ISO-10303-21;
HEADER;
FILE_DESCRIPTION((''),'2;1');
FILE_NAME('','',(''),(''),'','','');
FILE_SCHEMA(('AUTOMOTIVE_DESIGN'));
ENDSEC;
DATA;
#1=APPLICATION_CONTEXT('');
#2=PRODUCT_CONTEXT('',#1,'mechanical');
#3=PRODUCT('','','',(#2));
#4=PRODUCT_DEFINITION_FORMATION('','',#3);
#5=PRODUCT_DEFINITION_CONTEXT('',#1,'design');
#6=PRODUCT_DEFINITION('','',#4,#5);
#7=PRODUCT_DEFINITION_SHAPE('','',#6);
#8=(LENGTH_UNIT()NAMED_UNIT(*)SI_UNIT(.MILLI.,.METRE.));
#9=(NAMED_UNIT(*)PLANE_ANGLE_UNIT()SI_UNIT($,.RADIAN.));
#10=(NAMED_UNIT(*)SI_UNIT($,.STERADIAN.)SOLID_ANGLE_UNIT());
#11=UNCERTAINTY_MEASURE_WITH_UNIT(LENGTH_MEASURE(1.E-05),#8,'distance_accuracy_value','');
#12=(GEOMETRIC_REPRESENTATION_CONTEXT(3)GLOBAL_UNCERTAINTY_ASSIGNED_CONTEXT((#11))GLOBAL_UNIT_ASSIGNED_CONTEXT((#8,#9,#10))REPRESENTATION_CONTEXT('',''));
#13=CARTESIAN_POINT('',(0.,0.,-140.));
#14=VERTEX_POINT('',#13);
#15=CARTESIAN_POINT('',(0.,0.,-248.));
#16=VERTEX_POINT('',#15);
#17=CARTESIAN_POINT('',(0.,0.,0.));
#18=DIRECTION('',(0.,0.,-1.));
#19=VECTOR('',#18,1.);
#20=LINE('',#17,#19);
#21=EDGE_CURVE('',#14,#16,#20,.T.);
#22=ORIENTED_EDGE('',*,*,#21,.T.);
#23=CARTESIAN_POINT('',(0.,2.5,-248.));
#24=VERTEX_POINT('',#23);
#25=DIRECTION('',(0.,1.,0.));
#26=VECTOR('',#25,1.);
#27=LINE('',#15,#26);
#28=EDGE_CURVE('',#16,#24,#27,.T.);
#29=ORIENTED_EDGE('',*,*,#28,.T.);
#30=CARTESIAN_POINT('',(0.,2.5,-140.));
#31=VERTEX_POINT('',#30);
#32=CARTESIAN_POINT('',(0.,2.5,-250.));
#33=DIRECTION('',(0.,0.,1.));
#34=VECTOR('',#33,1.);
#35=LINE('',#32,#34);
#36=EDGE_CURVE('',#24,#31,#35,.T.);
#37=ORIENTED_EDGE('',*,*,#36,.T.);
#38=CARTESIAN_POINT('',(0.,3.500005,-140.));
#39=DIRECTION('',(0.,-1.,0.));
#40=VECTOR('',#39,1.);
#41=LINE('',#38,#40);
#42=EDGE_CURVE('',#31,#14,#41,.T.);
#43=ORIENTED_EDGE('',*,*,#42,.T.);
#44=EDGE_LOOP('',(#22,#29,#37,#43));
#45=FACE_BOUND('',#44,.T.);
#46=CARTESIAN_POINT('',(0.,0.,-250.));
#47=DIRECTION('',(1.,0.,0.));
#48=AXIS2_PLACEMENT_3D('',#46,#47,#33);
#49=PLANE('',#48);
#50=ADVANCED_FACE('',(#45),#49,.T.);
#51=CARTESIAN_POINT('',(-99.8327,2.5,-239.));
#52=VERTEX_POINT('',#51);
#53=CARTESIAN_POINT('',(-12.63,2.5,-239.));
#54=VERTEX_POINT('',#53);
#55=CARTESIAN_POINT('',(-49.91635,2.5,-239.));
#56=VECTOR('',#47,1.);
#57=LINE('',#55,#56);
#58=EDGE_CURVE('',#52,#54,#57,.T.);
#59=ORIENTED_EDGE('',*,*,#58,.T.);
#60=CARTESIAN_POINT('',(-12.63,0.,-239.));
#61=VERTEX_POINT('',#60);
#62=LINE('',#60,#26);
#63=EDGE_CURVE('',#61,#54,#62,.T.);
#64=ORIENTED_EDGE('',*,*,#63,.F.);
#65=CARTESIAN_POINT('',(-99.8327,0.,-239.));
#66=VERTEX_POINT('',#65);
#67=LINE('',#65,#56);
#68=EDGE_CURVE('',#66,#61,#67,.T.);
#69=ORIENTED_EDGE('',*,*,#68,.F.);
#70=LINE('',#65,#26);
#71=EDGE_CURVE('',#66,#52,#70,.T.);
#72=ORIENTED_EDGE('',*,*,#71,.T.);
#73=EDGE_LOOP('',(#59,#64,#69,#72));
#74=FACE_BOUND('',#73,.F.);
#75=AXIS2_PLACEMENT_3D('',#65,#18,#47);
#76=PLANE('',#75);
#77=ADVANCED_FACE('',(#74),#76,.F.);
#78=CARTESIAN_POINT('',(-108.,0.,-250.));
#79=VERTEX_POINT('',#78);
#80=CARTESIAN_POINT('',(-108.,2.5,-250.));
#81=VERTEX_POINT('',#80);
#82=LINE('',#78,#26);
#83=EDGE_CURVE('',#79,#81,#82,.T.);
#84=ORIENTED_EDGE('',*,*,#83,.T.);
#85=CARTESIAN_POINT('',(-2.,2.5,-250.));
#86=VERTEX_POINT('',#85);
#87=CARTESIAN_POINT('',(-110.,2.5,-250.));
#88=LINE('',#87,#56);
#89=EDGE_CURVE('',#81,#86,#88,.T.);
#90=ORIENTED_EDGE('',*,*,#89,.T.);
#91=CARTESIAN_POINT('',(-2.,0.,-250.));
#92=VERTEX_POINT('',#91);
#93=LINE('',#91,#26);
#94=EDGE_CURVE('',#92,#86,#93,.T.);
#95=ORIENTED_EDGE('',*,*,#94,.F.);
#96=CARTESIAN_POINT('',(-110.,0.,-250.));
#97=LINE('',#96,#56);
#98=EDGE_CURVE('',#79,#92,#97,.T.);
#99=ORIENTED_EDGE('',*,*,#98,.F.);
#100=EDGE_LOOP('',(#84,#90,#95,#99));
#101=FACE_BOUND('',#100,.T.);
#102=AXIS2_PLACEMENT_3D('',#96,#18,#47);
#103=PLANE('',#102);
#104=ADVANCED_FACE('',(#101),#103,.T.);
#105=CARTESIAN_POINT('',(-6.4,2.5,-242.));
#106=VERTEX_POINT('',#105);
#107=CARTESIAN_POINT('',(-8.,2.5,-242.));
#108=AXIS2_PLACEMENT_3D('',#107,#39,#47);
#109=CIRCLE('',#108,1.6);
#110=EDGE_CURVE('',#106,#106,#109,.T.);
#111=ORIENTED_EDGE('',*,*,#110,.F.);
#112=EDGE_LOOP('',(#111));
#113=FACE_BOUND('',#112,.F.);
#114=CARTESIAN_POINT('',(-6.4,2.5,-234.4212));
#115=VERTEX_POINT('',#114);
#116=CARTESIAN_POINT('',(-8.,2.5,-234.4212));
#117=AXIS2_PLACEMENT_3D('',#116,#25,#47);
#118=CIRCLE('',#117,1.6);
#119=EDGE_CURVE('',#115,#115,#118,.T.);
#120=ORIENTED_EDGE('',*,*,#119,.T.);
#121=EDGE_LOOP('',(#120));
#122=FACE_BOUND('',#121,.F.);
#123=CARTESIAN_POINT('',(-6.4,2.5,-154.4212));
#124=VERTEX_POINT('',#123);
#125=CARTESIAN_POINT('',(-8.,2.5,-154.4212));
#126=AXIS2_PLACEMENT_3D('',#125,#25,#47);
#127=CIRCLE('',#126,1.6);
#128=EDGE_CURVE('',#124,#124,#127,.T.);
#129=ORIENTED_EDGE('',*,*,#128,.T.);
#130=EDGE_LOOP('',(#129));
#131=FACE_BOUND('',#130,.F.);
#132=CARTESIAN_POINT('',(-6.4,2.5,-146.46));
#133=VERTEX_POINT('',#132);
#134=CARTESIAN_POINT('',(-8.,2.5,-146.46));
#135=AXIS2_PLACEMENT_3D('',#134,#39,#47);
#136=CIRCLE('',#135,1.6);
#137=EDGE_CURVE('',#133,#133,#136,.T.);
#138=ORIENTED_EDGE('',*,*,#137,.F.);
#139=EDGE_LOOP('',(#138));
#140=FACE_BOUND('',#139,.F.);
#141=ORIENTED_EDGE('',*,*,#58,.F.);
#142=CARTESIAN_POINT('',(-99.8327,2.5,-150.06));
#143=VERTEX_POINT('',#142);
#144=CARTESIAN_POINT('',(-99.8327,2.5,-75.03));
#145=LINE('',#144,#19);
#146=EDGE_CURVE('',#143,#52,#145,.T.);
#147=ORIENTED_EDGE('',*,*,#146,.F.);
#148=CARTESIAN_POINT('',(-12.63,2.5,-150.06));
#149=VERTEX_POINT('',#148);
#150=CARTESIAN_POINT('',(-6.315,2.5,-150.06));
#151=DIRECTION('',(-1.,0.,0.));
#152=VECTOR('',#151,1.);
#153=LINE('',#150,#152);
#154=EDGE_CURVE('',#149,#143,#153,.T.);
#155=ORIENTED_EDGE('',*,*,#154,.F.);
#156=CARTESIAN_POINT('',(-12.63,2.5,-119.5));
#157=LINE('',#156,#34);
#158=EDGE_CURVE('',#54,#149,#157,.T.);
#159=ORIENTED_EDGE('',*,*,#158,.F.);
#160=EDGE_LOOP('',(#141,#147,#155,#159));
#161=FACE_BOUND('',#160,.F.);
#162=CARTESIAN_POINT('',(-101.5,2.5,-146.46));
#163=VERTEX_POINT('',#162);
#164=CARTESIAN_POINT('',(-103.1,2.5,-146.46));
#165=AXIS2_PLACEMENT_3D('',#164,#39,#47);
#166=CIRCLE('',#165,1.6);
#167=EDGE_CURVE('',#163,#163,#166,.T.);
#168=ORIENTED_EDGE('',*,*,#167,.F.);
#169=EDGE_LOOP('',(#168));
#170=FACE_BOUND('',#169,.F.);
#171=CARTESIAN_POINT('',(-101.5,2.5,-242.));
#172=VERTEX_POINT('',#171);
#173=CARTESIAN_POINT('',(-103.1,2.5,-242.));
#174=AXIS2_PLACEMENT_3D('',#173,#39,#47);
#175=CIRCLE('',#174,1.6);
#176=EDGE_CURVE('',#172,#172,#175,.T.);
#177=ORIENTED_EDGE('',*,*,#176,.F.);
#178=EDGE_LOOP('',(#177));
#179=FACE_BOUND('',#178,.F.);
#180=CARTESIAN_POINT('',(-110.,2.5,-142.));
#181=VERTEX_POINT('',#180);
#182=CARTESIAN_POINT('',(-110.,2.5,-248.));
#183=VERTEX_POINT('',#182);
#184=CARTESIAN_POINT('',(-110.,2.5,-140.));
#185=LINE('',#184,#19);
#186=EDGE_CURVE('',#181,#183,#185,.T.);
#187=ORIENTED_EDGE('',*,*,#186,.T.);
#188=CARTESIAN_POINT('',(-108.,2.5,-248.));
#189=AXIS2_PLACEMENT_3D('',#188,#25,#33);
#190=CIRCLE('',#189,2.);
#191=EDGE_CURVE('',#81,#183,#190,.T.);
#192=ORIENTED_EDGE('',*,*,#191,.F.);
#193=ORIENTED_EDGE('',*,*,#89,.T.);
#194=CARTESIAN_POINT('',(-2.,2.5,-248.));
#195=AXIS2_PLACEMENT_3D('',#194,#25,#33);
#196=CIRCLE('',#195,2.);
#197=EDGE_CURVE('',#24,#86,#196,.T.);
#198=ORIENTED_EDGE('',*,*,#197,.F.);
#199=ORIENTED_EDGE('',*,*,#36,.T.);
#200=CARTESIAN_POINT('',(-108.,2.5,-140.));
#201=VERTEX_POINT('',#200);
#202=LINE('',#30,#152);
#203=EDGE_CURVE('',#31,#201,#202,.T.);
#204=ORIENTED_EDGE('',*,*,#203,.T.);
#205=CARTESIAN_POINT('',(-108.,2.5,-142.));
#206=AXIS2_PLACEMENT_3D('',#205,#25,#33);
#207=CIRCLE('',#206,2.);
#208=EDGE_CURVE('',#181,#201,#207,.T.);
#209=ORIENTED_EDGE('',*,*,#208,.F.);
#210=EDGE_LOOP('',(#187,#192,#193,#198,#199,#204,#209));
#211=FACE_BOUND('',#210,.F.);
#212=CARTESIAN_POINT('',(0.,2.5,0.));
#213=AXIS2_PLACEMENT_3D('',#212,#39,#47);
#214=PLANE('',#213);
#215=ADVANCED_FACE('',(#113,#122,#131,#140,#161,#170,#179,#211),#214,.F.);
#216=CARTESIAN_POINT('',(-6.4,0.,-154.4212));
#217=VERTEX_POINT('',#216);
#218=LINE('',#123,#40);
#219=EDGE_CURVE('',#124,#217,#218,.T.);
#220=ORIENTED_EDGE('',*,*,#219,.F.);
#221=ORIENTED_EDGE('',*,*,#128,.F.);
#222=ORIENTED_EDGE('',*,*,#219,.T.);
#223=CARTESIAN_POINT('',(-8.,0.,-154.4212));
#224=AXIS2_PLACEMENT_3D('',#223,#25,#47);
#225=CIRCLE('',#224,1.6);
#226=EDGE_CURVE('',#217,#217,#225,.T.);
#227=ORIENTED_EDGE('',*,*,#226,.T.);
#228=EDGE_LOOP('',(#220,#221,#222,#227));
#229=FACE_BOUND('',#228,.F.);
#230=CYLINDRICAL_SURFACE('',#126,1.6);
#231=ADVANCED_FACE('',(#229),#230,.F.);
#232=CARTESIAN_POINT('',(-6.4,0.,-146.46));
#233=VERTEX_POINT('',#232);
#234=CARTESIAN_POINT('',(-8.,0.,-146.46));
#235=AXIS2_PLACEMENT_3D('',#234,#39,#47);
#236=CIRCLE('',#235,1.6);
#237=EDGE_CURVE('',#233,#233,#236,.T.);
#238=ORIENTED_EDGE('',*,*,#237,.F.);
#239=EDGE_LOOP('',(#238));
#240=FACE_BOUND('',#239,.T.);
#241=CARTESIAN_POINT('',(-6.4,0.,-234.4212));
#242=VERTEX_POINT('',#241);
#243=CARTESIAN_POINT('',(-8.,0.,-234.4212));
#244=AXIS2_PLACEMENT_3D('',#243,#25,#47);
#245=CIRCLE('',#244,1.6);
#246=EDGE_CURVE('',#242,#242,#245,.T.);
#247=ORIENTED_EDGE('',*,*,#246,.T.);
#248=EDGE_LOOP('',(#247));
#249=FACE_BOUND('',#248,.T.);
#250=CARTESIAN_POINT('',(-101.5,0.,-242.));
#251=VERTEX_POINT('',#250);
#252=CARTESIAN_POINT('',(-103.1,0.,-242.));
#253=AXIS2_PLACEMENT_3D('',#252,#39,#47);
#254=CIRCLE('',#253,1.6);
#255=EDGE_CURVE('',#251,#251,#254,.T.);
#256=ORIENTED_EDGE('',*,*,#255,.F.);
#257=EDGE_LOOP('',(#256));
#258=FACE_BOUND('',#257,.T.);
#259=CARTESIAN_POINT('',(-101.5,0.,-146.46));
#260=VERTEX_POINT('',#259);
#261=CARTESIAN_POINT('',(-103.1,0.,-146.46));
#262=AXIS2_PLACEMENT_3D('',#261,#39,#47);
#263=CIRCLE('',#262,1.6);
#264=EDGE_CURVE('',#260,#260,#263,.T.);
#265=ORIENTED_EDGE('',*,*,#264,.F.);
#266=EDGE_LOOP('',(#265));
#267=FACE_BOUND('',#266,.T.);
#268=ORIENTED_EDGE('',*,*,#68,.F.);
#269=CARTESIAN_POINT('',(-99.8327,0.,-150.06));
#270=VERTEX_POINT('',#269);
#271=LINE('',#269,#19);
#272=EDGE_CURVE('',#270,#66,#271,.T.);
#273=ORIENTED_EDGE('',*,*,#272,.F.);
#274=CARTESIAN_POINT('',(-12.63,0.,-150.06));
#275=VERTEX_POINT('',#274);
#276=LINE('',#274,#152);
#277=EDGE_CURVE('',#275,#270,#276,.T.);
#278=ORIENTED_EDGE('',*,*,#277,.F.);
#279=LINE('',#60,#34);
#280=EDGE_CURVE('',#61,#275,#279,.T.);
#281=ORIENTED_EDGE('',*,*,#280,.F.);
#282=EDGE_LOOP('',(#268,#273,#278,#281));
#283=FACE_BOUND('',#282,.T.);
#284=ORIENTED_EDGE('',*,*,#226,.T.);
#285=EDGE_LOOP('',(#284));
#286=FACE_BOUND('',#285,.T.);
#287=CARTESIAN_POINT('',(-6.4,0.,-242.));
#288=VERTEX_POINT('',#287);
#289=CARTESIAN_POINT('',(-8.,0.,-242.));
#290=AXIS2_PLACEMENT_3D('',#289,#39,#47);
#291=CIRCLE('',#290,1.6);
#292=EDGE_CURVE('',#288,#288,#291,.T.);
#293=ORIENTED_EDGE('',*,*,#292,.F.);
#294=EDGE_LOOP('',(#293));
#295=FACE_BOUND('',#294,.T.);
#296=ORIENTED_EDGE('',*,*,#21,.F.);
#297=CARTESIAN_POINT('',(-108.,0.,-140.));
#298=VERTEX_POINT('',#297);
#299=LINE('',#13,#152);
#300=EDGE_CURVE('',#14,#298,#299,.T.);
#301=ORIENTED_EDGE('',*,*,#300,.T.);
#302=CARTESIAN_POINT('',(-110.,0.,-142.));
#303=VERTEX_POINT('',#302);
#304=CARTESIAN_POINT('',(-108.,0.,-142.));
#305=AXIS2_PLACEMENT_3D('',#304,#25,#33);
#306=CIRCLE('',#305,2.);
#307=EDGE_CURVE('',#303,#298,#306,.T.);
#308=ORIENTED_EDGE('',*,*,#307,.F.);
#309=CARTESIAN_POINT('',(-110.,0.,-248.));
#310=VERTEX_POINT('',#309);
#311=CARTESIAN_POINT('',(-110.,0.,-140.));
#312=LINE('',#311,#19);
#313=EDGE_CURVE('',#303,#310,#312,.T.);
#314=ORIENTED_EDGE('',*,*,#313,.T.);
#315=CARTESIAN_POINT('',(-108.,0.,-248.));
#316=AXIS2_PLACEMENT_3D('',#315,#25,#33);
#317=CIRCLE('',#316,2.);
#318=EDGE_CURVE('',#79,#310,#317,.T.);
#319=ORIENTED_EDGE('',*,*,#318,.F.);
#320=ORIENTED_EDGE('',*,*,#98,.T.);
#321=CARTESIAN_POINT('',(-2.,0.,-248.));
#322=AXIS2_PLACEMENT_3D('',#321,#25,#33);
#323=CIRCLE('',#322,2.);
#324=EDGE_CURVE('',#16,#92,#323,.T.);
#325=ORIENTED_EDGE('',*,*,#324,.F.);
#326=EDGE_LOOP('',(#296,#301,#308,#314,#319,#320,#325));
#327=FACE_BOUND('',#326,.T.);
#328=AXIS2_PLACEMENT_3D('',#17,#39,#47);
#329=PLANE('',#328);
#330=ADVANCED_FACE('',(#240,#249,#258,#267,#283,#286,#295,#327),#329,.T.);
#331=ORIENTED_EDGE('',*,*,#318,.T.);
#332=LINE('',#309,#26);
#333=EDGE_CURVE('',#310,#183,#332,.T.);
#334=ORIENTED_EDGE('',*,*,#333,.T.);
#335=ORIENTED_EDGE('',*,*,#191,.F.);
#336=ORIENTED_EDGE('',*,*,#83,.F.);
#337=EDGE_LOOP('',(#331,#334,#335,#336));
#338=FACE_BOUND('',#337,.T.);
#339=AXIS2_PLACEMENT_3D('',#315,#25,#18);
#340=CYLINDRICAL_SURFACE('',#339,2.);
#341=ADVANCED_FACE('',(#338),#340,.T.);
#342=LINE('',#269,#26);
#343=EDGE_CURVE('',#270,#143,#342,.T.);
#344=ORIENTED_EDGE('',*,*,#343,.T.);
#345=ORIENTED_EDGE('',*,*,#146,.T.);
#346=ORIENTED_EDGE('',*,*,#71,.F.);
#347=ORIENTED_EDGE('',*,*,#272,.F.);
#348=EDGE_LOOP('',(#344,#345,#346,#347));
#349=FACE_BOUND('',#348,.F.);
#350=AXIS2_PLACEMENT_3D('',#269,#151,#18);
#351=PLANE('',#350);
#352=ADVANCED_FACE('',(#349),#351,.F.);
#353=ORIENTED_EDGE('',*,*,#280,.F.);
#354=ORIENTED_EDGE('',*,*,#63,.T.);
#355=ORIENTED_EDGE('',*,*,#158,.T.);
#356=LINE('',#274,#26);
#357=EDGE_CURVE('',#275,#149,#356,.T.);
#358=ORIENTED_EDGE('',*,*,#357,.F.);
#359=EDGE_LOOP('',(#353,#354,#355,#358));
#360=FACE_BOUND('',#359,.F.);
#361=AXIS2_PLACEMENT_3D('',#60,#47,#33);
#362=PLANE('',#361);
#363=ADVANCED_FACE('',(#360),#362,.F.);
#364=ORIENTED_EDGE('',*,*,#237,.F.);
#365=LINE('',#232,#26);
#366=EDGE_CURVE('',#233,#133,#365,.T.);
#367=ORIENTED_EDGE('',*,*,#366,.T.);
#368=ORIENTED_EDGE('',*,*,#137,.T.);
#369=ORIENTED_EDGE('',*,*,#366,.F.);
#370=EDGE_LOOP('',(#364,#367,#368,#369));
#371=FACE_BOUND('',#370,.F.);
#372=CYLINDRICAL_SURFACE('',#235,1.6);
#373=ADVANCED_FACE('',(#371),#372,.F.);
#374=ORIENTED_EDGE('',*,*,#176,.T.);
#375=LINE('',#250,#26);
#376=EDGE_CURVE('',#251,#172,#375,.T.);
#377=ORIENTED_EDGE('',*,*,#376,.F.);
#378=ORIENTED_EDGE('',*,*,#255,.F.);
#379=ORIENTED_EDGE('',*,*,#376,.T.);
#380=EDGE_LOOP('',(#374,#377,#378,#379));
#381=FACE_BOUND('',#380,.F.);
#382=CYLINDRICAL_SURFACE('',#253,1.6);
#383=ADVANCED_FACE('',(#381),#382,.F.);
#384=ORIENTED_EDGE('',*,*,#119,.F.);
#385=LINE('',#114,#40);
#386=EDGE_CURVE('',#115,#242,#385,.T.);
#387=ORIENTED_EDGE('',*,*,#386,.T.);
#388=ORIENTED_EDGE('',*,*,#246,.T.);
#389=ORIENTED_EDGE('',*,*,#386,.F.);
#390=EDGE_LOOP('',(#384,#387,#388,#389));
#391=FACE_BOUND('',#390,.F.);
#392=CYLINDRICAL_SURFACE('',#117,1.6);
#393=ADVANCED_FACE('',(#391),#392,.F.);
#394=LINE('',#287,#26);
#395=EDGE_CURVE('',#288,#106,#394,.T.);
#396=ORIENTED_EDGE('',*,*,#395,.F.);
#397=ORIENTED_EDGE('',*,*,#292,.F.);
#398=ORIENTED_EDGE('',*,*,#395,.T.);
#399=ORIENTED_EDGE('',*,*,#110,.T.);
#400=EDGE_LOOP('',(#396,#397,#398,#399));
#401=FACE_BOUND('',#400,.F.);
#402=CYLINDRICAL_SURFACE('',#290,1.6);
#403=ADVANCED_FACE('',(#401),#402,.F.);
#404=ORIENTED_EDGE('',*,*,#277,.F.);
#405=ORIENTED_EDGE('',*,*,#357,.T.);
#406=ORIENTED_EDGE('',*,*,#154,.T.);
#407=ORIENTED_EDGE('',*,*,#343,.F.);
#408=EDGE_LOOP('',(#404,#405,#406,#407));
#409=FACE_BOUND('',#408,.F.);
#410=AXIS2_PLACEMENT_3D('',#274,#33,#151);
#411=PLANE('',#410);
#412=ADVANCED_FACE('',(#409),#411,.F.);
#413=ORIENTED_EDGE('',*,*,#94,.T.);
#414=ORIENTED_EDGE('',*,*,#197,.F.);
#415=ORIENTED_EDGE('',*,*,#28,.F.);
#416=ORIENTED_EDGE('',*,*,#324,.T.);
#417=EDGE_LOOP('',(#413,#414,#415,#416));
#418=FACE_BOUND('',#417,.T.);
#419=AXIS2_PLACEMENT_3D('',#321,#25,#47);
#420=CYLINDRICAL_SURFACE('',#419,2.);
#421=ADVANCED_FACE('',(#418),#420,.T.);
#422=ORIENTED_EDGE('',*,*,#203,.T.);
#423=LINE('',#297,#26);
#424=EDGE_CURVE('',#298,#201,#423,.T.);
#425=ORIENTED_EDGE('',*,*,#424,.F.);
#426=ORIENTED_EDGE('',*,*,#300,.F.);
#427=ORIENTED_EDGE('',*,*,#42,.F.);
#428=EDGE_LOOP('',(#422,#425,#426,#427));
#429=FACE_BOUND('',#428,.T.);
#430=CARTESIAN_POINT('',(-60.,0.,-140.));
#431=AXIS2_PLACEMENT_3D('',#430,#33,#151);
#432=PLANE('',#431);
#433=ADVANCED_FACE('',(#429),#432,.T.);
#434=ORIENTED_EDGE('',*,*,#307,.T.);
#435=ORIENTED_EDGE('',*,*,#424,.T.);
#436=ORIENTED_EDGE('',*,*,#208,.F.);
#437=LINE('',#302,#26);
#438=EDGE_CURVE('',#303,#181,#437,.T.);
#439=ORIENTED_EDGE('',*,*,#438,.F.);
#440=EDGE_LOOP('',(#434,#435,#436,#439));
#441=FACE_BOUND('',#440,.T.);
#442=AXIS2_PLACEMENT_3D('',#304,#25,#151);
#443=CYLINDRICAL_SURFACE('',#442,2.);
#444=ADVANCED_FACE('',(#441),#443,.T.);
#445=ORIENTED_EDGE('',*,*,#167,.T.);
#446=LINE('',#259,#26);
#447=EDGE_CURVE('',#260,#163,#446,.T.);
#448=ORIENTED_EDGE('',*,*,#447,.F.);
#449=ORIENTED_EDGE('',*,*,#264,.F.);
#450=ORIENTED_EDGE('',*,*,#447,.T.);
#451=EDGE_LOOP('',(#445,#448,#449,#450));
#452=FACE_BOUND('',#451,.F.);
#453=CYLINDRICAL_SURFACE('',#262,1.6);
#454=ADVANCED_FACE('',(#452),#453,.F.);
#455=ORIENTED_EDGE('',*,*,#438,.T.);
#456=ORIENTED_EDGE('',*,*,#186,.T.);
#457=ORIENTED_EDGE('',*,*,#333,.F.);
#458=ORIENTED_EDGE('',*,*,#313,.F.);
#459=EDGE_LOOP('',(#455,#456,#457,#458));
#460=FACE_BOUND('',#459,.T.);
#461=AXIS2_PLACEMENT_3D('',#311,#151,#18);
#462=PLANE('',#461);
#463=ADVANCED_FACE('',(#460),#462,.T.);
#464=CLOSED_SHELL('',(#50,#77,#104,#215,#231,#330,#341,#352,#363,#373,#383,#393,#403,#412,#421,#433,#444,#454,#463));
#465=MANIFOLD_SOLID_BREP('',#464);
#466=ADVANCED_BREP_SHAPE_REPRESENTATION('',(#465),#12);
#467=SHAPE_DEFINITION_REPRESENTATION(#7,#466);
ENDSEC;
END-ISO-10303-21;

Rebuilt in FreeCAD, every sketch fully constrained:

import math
import FreeCAD as App
import Part
import Sketcher
Q = App.Units.Quantity


def edges_at(feature, points):
    """Names of the edges that pass closest to the given points."""
    edges = feature.Shape.Edges
    near = lambda p: min(range(len(edges)), key=lambda i: edges[i].distToShape(Part.Vertex(*p))[0])
    return sorted({f"Edge{near(p) + 1}" for p in points})

doc = App.newDocument("Part")
body = doc.addObject("PartDesign::Body", "Body")

sketch1 = body.newObject("Sketcher::SketchObject", "Sketch")
sketch1.AttachmentSupport = (doc.getObject("XZ_Plane"), [""])
sketch1.MapMode = "FlatFace"
sketch1.addGeometry([
    Part.LineSegment(App.Vector(-60, 0, 0), App.Vector(0, 0, 0)),
    Part.LineSegment(App.Vector(0, 0, 0), App.Vector(0, -140, 0)),
    Part.LineSegment(App.Vector(0, -140, 0), App.Vector(-60, -140, 0)),
    Part.LineSegment(App.Vector(-60, -140, 0), App.Vector(-60, 0, 0)),
], False)
sketch1.addConstraint([
    Sketcher.Constraint("Coincident", 0, 2, 1, 1),
    Sketcher.Constraint("Coincident", 1, 2, 2, 1),
    Sketcher.Constraint("Coincident", 2, 2, 3, 1),
    Sketcher.Constraint("Coincident", 3, 2, 0, 1),
    Sketcher.Constraint("Horizontal", 0),
    Sketcher.Constraint("Vertical", 1),
    Sketcher.Constraint("Horizontal", 2),
    Sketcher.Constraint("Vertical", 3),
    Sketcher.Constraint("Coincident", 0, 2, -1, 1),
    Sketcher.Constraint("DistanceX", 0, 1, 0, 2, Q("60 mm")),
    Sketcher.Constraint("DistanceY", 1, 2, 1, 1, Q("140 mm")),
])
pad1 = body.newObject("PartDesign::Pad", "Pad")
pad1.Profile = sketch1
pad1.Length = 2.5
pad1.Reversed = True

sketch2 = body.newObject("Sketcher::SketchObject", "Sketch001")
sketch2.AttachmentSupport = (doc.getObject("XZ_Plane"), [""])
sketch2.MapMode = "FlatFace"
sketch2.AttachmentOffset = App.Placement(App.Vector(0, 0, -2.5), App.Rotation())
sketch2.addGeometry(Part.Circle(App.Vector(-30, -29.9185, 0), App.Vector(0, 0, 1), 2.55), False)
sketch2.addConstraint([
    Sketcher.Constraint("Diameter", 0, Q("5.1 mm")),
    Sketcher.Constraint("DistanceX", 0, 3, -1, 1, Q("30 mm")),
    Sketcher.Constraint("DistanceY", 0, 3, -1, 1, Q("29.9185 mm")),
])
pocket1 = body.newObject("PartDesign::Pocket", "Pocket")
pocket1.Profile = sketch2
pocket1.Length = 10
pocket1.Midplane = True

sketch3 = body.newObject("Sketcher::SketchObject", "Sketch002")
sketch3.AttachmentSupport = (doc.getObject("XZ_Plane"), [""])
sketch3.MapMode = "FlatFace"
sketch3.AttachmentOffset = App.Placement(App.Vector(0, 0, -2.5), App.Rotation())
sketch3.addGeometry(Part.Circle(App.Vector(-30, -29.9185, 0), App.Vector(0, 0, 1), 11.25), False)
sketch3.addConstraint([
    Sketcher.Constraint("Diameter", 0, Q("22.5 mm")),
    Sketcher.Constraint("DistanceX", 0, 3, -1, 1, Q("30 mm")),
    Sketcher.Constraint("DistanceY", 0, 3, -1, 1, Q("29.9185 mm")),
])
pocket2 = body.newObject("PartDesign::Pocket", "Pocket001")
pocket2.Profile = sketch3
pocket2.Length = 10
pocket2.Reversed = True

sketch4 = body.newObject("Sketcher::SketchObject", "Sketch003")
sketch4.AttachmentSupport = (doc.getObject("XZ_Plane"), [""])
sketch4.MapMode = "FlatFace"
sketch4.AttachmentOffset = App.Placement(App.Vector(0, 0, -2.5), App.Rotation())
sketch4.addGeometry(Part.Circle(App.Vector(-30, -29.9185, 0), App.Vector(0, 0, 1), 11.25), False)
sketch4.addConstraint([
    Sketcher.Constraint("Diameter", 0, Q("22.5 mm")),
    Sketcher.Constraint("DistanceX", 0, 3, -1, 1, Q("30 mm")),
    Sketcher.Constraint("DistanceY", 0, 3, -1, 1, Q("29.9185 mm")),
])
pocket3 = body.newObject("PartDesign::Pocket", "Pocket002")
pocket3.Profile = sketch4
pocket3.Length = 10
pocket3.Reversed = True

sketch5 = body.newObject("Sketcher::SketchObject", "Sketch004")
sketch5.AttachmentSupport = (doc.getObject("XZ_Plane"), [""])
sketch5.MapMode = "FlatFace"
sketch5.addGeometry([
    Part.LineSegment(App.Vector(-26.8, -115.1185, 0), App.Vector(-26.8, -111.9185, 0)),
    Part.LineSegment(App.Vector(-26.8, -111.9185, 0), App.Vector(-33.2, -111.9185, 0)),
    Part.LineSegment(App.Vector(-33.2, -111.9185, 0), App.Vector(-33.2, -115.1185, 0)),
    Part.LineSegment(App.Vector(-33.2, -115.1185, 0), App.Vector(-26.8, -115.1185, 0)),
], False)
sketch5.addConstraint([
    Sketcher.Constraint("Coincident", 0, 2, 1, 1),
    Sketcher.Constraint("Coincident", 1, 2, 2, 1),
    Sketcher.Constraint("Coincident", 2, 2, 3, 1),
    Sketcher.Constraint("Coincident", 3, 2, 0, 1),
    Sketcher.Constraint("Vertical", 0),
    Sketcher.Constraint("Horizontal", 1),
    Sketcher.Constraint("Vertical", 2),
    Sketcher.Constraint("Horizontal", 3),
    Sketcher.Constraint("DistanceY", 0, 1, 0, 2, Q("3.2 mm")),
    Sketcher.Constraint("DistanceX", 1, 2, 1, 1, Q("6.4 mm")),
    Sketcher.Constraint("DistanceX", 0, 2, -1, 1, Q("26.8 mm")),
    Sketcher.Constraint("DistanceY", 0, 2, -1, 1, Q("111.9185 mm")),
])
pad2 = body.newObject("PartDesign::Pad", "Pad001")
pad2.Profile = sketch5
pad2.Length = 105

sketch6 = body.newObject("Sketcher::SketchObject", "Sketch005")
sketch6.AttachmentSupport = (doc.getObject("XZ_Plane"), [""])
sketch6.MapMode = "FlatFace"
sketch6.AttachmentOffset = App.Placement(App.Vector(0, 0, 105), App.Rotation())
sketch6.addGeometry([
    Part.LineSegment(App.Vector(-33.2, -111.9185, 0), App.Vector(-26.8, -111.9185, 0)),
    Part.LineSegment(App.Vector(-26.8, -111.9185, 0), App.Vector(-26.8, -14.9185, 0)),
    Part.LineSegment(App.Vector(-26.8, -14.9185, 0), App.Vector(-33.2, -14.9185, 0)),
    Part.LineSegment(App.Vector(-33.2, -14.9185, 0), App.Vector(-33.2, -111.9185, 0)),
    Part.Circle(App.Vector(-30, -29.9185, 0), App.Vector(0, 0, 1), 2.55),
], False)
sketch6.addConstraint([
    Sketcher.Constraint("Coincident", 0, 2, 1, 1),
    Sketcher.Constraint("Coincident", 1, 2, 2, 1),
    Sketcher.Constraint("Coincident", 2, 2, 3, 1),
    Sketcher.Constraint("Coincident", 3, 2, 0, 1),
    Sketcher.Constraint("Horizontal", 0),
    Sketcher.Constraint("Vertical", 1),
    Sketcher.Constraint("Horizontal", 2),
    Sketcher.Constraint("Vertical", 3),
    Sketcher.Constraint("DistanceY", 4, 3, 1, 2, Q("15 mm")),
    Sketcher.Constraint("Diameter", 4, Q("5.1 mm")),
    Sketcher.Constraint("DistanceY", 1, 1, 1, 2, Q("97 mm")),
    Sketcher.Constraint("DistanceX", 0, 1, 0, 2, Q("6.4 mm")),
    Sketcher.Constraint("DistanceX", 4, 3, -1, 1, Q("30 mm")),
    Sketcher.Constraint("DistanceX", 0, 2, -1, 1, Q("26.8 mm")),
    Sketcher.Constraint("DistanceY", 4, 3, -1, 1, Q("29.9185 mm")),
])
pad3 = body.newObject("PartDesign::Pad", "Pad002")
pad3.Profile = sketch6
pad3.Length = 3.5
pad3.Reversed = True

sketch7 = body.newObject("Sketcher::SketchObject", "Sketch006")
sketch7.AttachmentSupport = (doc.getObject("XZ_Plane"), [""])
sketch7.MapMode = "FlatFace"
sketch7.AttachmentOffset = App.Placement(App.Vector(0, 0, 105), App.Rotation())
sketch7.addGeometry([
    Part.ArcOfCircle(Part.Circle(App.Vector(-30, -29.9185, 0), App.Vector(0, 0, 1), 11.25), math.radians(73.474357), math.radians(106.525643)),
    Part.LineSegment(App.Vector(-26.8, -19.133209, 0), App.Vector(-26.8, -14.9185, 0)),
    Part.LineSegment(App.Vector(-26.8, -14.9185, 0), App.Vector(-33.2, -14.9185, 0)),
    Part.LineSegment(App.Vector(-33.2, -14.9185, 0), App.Vector(-33.2, -19.133209, 0)),
], False)
sketch7.addConstraint([
    Sketcher.Constraint("Coincident", 0, 1, 1, 1),
    Sketcher.Constraint("Coincident", 1, 2, 2, 1),
    Sketcher.Constraint("Coincident", 2, 2, 3, 1),
    Sketcher.Constraint("Coincident", 3, 2, 0, 2),
    Sketcher.Constraint("Vertical", 1),
    Sketcher.Constraint("Horizontal", 2),
    Sketcher.Constraint("Vertical", 3),
    Sketcher.Constraint("Horizontal", 0, 1, 3, 2),
    Sketcher.Constraint("Radius", 0, Q("11.25 mm")),
    Sketcher.Constraint("DistanceX", 2, 2, 2, 1, Q("6.4 mm")),
    Sketcher.Constraint("DistanceX", 0, 3, -1, 1, Q("30 mm")),
    Sketcher.Constraint("DistanceY", 0, 3, 1, 2, Q("15 mm")),
    Sketcher.Constraint("DistanceY", 0, 3, -1, 1, Q("29.9185 mm")),
])
pad4 = body.newObject("PartDesign::Pad", "Pad003")
pad4.Profile = sketch7
pad4.Length = 105
pad4.Reversed = True

sketch8 = body.newObject("Sketcher::SketchObject", "Sketch007")
sketch8.AttachmentSupport = (doc.getObject("XZ_Plane"), [""])
sketch8.MapMode = "FlatFace"
sketch8.AttachmentOffset = App.Placement(App.Vector(0, 0, 105), App.Rotation())
sketch8.addGeometry([
    Part.Circle(App.Vector(-30, -29.9185, 0), App.Vector(0, 0, 1), 3.05),
    Part.Circle(App.Vector(-30, -29.9185, 0), App.Vector(0, 0, 1), 2.55),
], False)
sketch8.addConstraint([
    Sketcher.Constraint("Coincident", 1, 3, 0, 3),
    Sketcher.Constraint("Diameter", 0, Q("6.1 mm")),
    Sketcher.Constraint("Diameter", 1, Q("5.1 mm")),
    Sketcher.Constraint("DistanceX", 0, 3, -1, 1, Q("30 mm")),
    Sketcher.Constraint("DistanceY", 0, 3, -1, 1, Q("29.9185 mm")),
])
pocket4 = body.newObject("PartDesign::Pocket", "Pocket003")
pocket4.Profile = sketch8
pocket4.Length = 3.5

sketch9 = body.newObject("Sketcher::SketchObject", "Sketch008")
sketch9.AttachmentSupport = (doc.getObject("YZ_Plane"), [""])
sketch9.MapMode = "FlatFace"
sketch9.AttachmentOffset = App.Placement(App.Vector(0, 0, -33.2), App.Rotation())
sketch9.addGeometry([
    Part.LineSegment(App.Vector(-101.5, -19.1332, 0), App.Vector(-101.5, -111.9185, 0)),
    Part.LineSegment(App.Vector(-101.5, -111.9185, 0), App.Vector(0, -111.9185, 0)),
    Part.LineSegment(App.Vector(0, -111.9185, 0), App.Vector(0, -115.1185, 0)),
    Part.LineSegment(App.Vector(0, -115.1185, 0), App.Vector(-105, -115.1185, 0)),
    Part.LineSegment(App.Vector(-105, -115.1185, 0), App.Vector(-105, -14.9185, 0)),
    Part.LineSegment(App.Vector(-105, -14.9185, 0), App.Vector(0, -14.9185, 0)),
    Part.LineSegment(App.Vector(0, -14.9185, 0), App.Vector(0, -19.1332, 0)),
    Part.LineSegment(App.Vector(0, -19.1332, 0), App.Vector(-101.5, -19.1332, 0)),
], False)
sketch9.addConstraint([
    Sketcher.Constraint("Coincident", 0, 2, 1, 1),
    Sketcher.Constraint("Coincident", 1, 2, 2, 1),
    Sketcher.Constraint("Coincident", 2, 2, 3, 1),
    Sketcher.Constraint("Coincident", 3, 2, 4, 1),
    Sketcher.Constraint("Coincident", 4, 2, 5, 1),
    Sketcher.Constraint("Coincident", 5, 2, 6, 1),
    Sketcher.Constraint("Coincident", 6, 2, 7, 1),
    Sketcher.Constraint("Coincident", 7, 2, 0, 1),
    Sketcher.Constraint("Vertical", 0),
    Sketcher.Constraint("Horizontal", 1),
    Sketcher.Constraint("Vertical", 2),
    Sketcher.Constraint("Horizontal", 3),
    Sketcher.Constraint("Vertical", 4),
    Sketcher.Constraint("Horizontal", 5),
    Sketcher.Constraint("Vertical", 6),
    Sketcher.Constraint("Horizontal", 7),
    Sketcher.Constraint("PointOnObject", 1, 2, -2),
    Sketcher.Constraint("PointOnObject", 5, 2, -2),
    Sketcher.Constraint("DistanceX", 3, 2, 3, 1, Q("105 mm")),
    Sketcher.Constraint("DistanceX", 1, 1, 1, 2, Q("101.5 mm")),
    Sketcher.Constraint("DistanceY", 2, 2, 2, 1, Q("3.2 mm")),
    Sketcher.Constraint("DistanceY", 4, 1, 4, 2, Q("100.2 mm")),
    Sketcher.Constraint("DistanceY", 0, 2, 0, 1, Q("92.7853 mm")),
    Sketcher.Constraint("DistanceY", 0, 2, -1, 1, Q("111.9185 mm")),
])
pad5 = body.newObject("PartDesign::Pad", "Pad004")
pad5.Profile = sketch9
pad5.Length = 1
pad5.Reversed = True

sketch10 = body.newObject("Sketcher::SketchObject", "Sketch009")
sketch10.AttachmentSupport = (doc.getObject("XZ_Plane"), [""])
sketch10.MapMode = "FlatFace"
sketch10.AttachmentOffset = App.Placement(App.Vector(0, 0, -2.5), App.Rotation())
sketch10.addGeometry([
    Part.Circle(App.Vector(-30, -29.9185, 0), App.Vector(0, 0, 1), 11.25),
    Part.Circle(App.Vector(-30, -29.9185, 0), App.Vector(0, 0, 1), 2.55),
], False)
sketch10.addConstraint([
    Sketcher.Constraint("Coincident", 1, 3, 0, 3),
    Sketcher.Constraint("Diameter", 0, Q("22.5 mm")),
    Sketcher.Constraint("Diameter", 1, Q("5.1 mm")),
    Sketcher.Constraint("DistanceX", 0, 3, -1, 1, Q("30 mm")),
    Sketcher.Constraint("DistanceY", 0, 3, -1, 1, Q("29.9185 mm")),
])
pad6 = body.newObject("PartDesign::Pad", "Pad005")
pad6.Profile = sketch10
pad6.Length = 2.5

sketch11 = body.newObject("Sketcher::SketchObject", "Sketch010")
sketch11.AttachmentSupport = (doc.getObject("XZ_Plane"), [""])
sketch11.MapMode = "FlatFace"
sketch11.AttachmentOffset = App.Placement(App.Vector(0, 0, -2.5), App.Rotation())
sketch11.addGeometry([
    Part.Circle(App.Vector(-30, -29.9185, 0), App.Vector(0, 0, 1), 11.25),
    Part.Circle(App.Vector(-30, -29.9185, 0), App.Vector(0, 0, 1), 2.55),
], False)
sketch11.addConstraint([
    Sketcher.Constraint("Coincident", 1, 3, 0, 3),
    Sketcher.Constraint("Diameter", 0, Q("22.5 mm")),
    Sketcher.Constraint("Diameter", 1, Q("5.1 mm")),
    Sketcher.Constraint("DistanceX", 0, 3, -1, 1, Q("30 mm")),
    Sketcher.Constraint("DistanceY", 0, 3, -1, 1, Q("29.9185 mm")),
])
pocket5 = body.newObject("PartDesign::Pocket", "Pocket004")
pocket5.Profile = sketch11
pocket5.Length = 2
pocket5.Reversed = True

sketch12 = body.newObject("Sketcher::SketchObject", "Sketch011")
sketch12.AttachmentSupport = (doc.getObject("XZ_Plane"), [""])
sketch12.MapMode = "FlatFace"
sketch12.AttachmentOffset = App.Placement(App.Vector(0, 0, 105), App.Rotation())
sketch12.addGeometry([
    Part.LineSegment(App.Vector(-34.2, -19.1332, 0), App.Vector(-26.8, -19.1332, 0)),
    Part.LineSegment(App.Vector(-26.8, -19.1332, 0), App.Vector(-26.8, -14.9185, 0)),
    Part.LineSegment(App.Vector(-26.8, -14.9185, 0), App.Vector(-34.2, -14.9185, 0)),
    Part.LineSegment(App.Vector(-34.2, -14.9185, 0), App.Vector(-34.2, -19.1332, 0)),
], False)
sketch12.addConstraint([
    Sketcher.Constraint("Coincident", 0, 2, 1, 1),
    Sketcher.Constraint("Coincident", 1, 2, 2, 1),
    Sketcher.Constraint("Coincident", 2, 2, 3, 1),
    Sketcher.Constraint("Coincident", 3, 2, 0, 1),
    Sketcher.Constraint("Horizontal", 0),
    Sketcher.Constraint("Vertical", 1),
    Sketcher.Constraint("Horizontal", 2),
    Sketcher.Constraint("Vertical", 3),
    Sketcher.Constraint("DistanceX", 0, 1, 0, 2, Q("7.4 mm")),
    Sketcher.Constraint("DistanceX", 0, 2, -1, 1, Q("26.8 mm")),
    Sketcher.Constraint("DistanceY", 1, 1, 1, 2, Q("4.2147 mm")),
    Sketcher.Constraint("DistanceY", 0, 2, -1, 1, Q("19.1332 mm")),
])
pocket6 = body.newObject("PartDesign::Pocket", "Pocket005")
pocket6.Profile = sketch12
pocket6.Length = 105

sketch13 = body.newObject("Sketcher::SketchObject", "Sketch012")
sketch13.AttachmentSupport = (doc.getObject("XZ_Plane"), [""])
sketch13.MapMode = "FlatFace"
sketch13.AttachmentOffset = App.Placement(App.Vector(0, 0, 101.5), App.Rotation())
sketch13.addGeometry([
    Part.LineSegment(App.Vector(-34.2, -19.1332, 0), App.Vector(-25.8, -19.1332, 0)),
    Part.LineSegment(App.Vector(-25.8, -19.1332, 0), App.Vector(-25.8, -25.4182, 0)),
    Part.LineSegment(App.Vector(-25.8, -25.4182, 0), App.Vector(-34.2, -25.4182, 0)),
    Part.LineSegment(App.Vector(-34.2, -25.4182, 0), App.Vector(-34.2, -19.1332, 0)),
], False)
sketch13.addConstraint([
    Sketcher.Constraint("Coincident", 0, 2, 1, 1),
    Sketcher.Constraint("Coincident", 1, 2, 2, 1),
    Sketcher.Constraint("Coincident", 2, 2, 3, 1),
    Sketcher.Constraint("Coincident", 3, 2, 0, 1),
    Sketcher.Constraint("Horizontal", 0),
    Sketcher.Constraint("Vertical", 1),
    Sketcher.Constraint("Horizontal", 2),
    Sketcher.Constraint("Vertical", 3),
    Sketcher.Constraint("DistanceY", 1, 2, 1, 1, Q("6.285 mm")),
    Sketcher.Constraint("DistanceX", 0, 1, 0, 2, Q("8.4 mm")),
    Sketcher.Constraint("DistanceX", 0, 2, -1, 1, Q("25.8 mm")),
    Sketcher.Constraint("DistanceY", 0, 2, -1, 1, Q("19.1332 mm")),
])
pad7 = body.newObject("PartDesign::Pad", "Pad006")
pad7.Profile = sketch13
pad7.Length = 101.5
pad7.Reversed = True
doc.recompute()

fillet = body.newObject("PartDesign::Fillet", "Fillet")
fillet.Base = (pad7, edges_at(pad7, [(-34.2, -52.5, -19.133), (-25.8, -50.75, -19.133), (-34.2, -52.5, -115.118)]))
fillet.Radius = 2

sketch14 = body.newObject("Sketcher::SketchObject", "Sketch013")
sketch14.AttachmentSupport = (doc.getObject("XZ_Plane"), [""])
sketch14.MapMode = "FlatFace"
sketch14.AttachmentOffset = App.Placement(App.Vector(0, 0, -2.5), App.Rotation())
sketch14.addGeometry([
    Part.Circle(App.Vector(-45.5, -14.4185, 0), App.Vector(0, 0, 1), 2.5),
    Part.Circle(App.Vector(-45.5, -45.4185, 0), App.Vector(0, 0, 1), 2.5),
], False)
sketch14.addConstraint([
    Sketcher.Constraint("Equal", 0, 1),
    Sketcher.Constraint("Vertical", 0, 3, 1, 3),
    Sketcher.Constraint("Diameter", 0, Q("5 mm")),
    Sketcher.Constraint("DistanceY", 1, 3, 0, 3, Q("31 mm")),
    Sketcher.Constraint("DistanceX", 0, 3, -1, 1, Q("45.5 mm")),
    Sketcher.Constraint("DistanceY", 0, 3, -1, 1, Q("14.4185 mm")),
])
pocket7 = body.newObject("PartDesign::Pocket", "Pocket006")
pocket7.Profile = sketch14
pocket7.Length = 10
pocket7.Reversed = True
doc.recompute()

datumplane = body.newObject("PartDesign::Plane", "DatumPlane")
datumplane.AttachmentSupport = (doc.getObject("YZ_Plane"), [""])
datumplane.MapMode = "FlatFace"
datumplane.AttachmentOffset = App.Placement(App.Vector(0, 0, -30), App.Rotation())
mirrored = body.newObject("PartDesign::Mirrored", "Mirrored")
mirrored.Originals = [pocket7]
mirrored.MirrorPlane = (datumplane, [""])
body.Tip = mirrored

sketch15 = body.newObject("Sketcher::SketchObject", "Sketch014")
sketch15.AttachmentSupport = (doc.getObject("XZ_Plane"), [""])
sketch15.MapMode = "FlatFace"
sketch15.addGeometry([
    Part.LineSegment(App.Vector(0, -250, 0), App.Vector(0, -140, 0)),
    Part.LineSegment(App.Vector(0, -140, 0), App.Vector(-110, -140, 0)),
    Part.LineSegment(App.Vector(-110, -140, 0), App.Vector(-110, -250, 0)),
    Part.LineSegment(App.Vector(-110, -250, 0), App.Vector(0, -250, 0)),
    Part.Circle(App.Vector(-103.1, -242, 0), App.Vector(0, 0, 1), 1.6),
    Part.Circle(App.Vector(-8, -242, 0), App.Vector(0, 0, 1), 1.6),
    Part.Circle(App.Vector(-103.1, -146.46, 0), App.Vector(0, 0, 1), 1.6),
    Part.Circle(App.Vector(-8, -146.46, 0), App.Vector(0, 0, 1), 1.6),
], False)
sketch15.addConstraint([
    Sketcher.Constraint("Coincident", 0, 2, 1, 1),
    Sketcher.Constraint("Coincident", 1, 2, 2, 1),
    Sketcher.Constraint("Coincident", 2, 2, 3, 1),
    Sketcher.Constraint("Coincident", 3, 2, 0, 1),
    Sketcher.Constraint("Vertical", 0),
    Sketcher.Constraint("Horizontal", 1),
    Sketcher.Constraint("Vertical", 2),
    Sketcher.Constraint("Horizontal", 3),
    Sketcher.Constraint("Equal", 4, 5),
    Sketcher.Constraint("Equal", 5, 6),
    Sketcher.Constraint("Equal", 6, 7),
    Sketcher.Constraint("PointOnObject", 0, 2, -2),
    Sketcher.Constraint("Horizontal", 4, 3, 5, 3),
    Sketcher.Constraint("Horizontal", 6, 3, 7, 3),
    Sketcher.Constraint("Vertical", 4, 3, 6, 3),
    Sketcher.Constraint("Vertical", 5, 3, 7, 3),
    Sketcher.Constraint("Equal", 3, 0),
    Sketcher.Constraint("Diameter", 4, Q("3.2 mm")),
    Sketcher.Constraint("DistanceX", 1, 2, 1, 1, Q("110 mm")),
    Sketcher.Constraint("DistanceX", 5, 3, -1, 1, Q("8 mm")),
    Sketcher.Constraint("DistanceY", 2, 2, 4, 3, Q("8 mm")),
    Sketcher.Constraint("DistanceX", 4, 3, 5, 3, Q("95.1 mm")),
    Sketcher.Constraint("DistanceY", 4, 3, 6, 3, Q("95.54 mm")),
    Sketcher.Constraint("DistanceY", 4, 3, -1, 1, Q("242 mm")),
])
pad8 = body.newObject("PartDesign::Pad", "Pad007")
pad8.Profile = sketch15
pad8.Length = 2.5
pad8.Reversed = True

sketch16 = body.newObject("Sketcher::SketchObject", "Sketch015")
sketch16.AttachmentSupport = (doc.getObject("YZ_Plane"), [""])
sketch16.MapMode = "FlatFace"
sketch16.AttachmentOffset = App.Placement(App.Vector(0, 0, -25.8), App.Rotation())
sketch16.addGeometry([
    Part.LineSegment(App.Vector(-16.5, -25.4182, 0), App.Vector(0, -25.4182, 0)),
    Part.LineSegment(App.Vector(0, -25.4182, 0), App.Vector(0, -17.1332, 0)),
    Part.LineSegment(App.Vector(0, -17.1332, 0), App.Vector(-16.5, -17.1332, 0)),
    Part.LineSegment(App.Vector(-16.5, -17.1332, 0), App.Vector(-16.5, -25.4182, 0)),
], False)
sketch16.addConstraint([
    Sketcher.Constraint("Coincident", 0, 2, 1, 1),
    Sketcher.Constraint("Coincident", 1, 2, 2, 1),
    Sketcher.Constraint("Coincident", 2, 2, 3, 1),
    Sketcher.Constraint("Coincident", 3, 2, 0, 1),
    Sketcher.Constraint("Horizontal", 0),
    Sketcher.Constraint("Vertical", 1),
    Sketcher.Constraint("Horizontal", 2),
    Sketcher.Constraint("Vertical", 3),
    Sketcher.Constraint("PointOnObject", 0, 2, -2),
    Sketcher.Constraint("DistanceX", 0, 1, 0, 2, Q("16.5 mm")),
    Sketcher.Constraint("DistanceY", 1, 1, 1, 2, Q("8.285 mm")),
    Sketcher.Constraint("DistanceY", 0, 2, -1, 1, Q("25.4182 mm")),
])
pocket8 = body.newObject("PartDesign::Pocket", "Pocket007")
pocket8.Profile = sketch16
pocket8.Length = 20.75
pocket8.Midplane = True

sketch17 = body.newObject("Sketcher::SketchObject", "Sketch016")
sketch17.AttachmentSupport = (doc.getObject("YZ_Plane"), [""])
sketch17.MapMode = "FlatFace"
sketch17.AttachmentOffset = App.Placement(App.Vector(0, 0, -25.8), App.Rotation())
sketch17.addGeometry([
    Part.LineSegment(App.Vector(-23.4464, -19.1332, 0), App.Vector(-16.5, -19.1332, 0)),
    Part.LineSegment(App.Vector(-16.5, -19.1332, 0), App.Vector(-16.5, -17.1332, 0)),
    Part.LineSegment(App.Vector(-16.5, -17.1332, 0), App.Vector(0, -17.1332, 0)),
    Part.LineSegment(App.Vector(0, -17.1332, 0), App.Vector(0, -11.3255, 0)),
    Part.LineSegment(App.Vector(0, -11.3255, 0), App.Vector(-23.4464, -11.3255, 0)),
    Part.LineSegment(App.Vector(-23.4464, -11.3255, 0), App.Vector(-23.4464, -19.1332, 0)),
], False)
sketch17.addConstraint([
    Sketcher.Constraint("Coincident", 0, 2, 1, 1),
    Sketcher.Constraint("Coincident", 1, 2, 2, 1),
    Sketcher.Constraint("Coincident", 2, 2, 3, 1),
    Sketcher.Constraint("Coincident", 3, 2, 4, 1),
    Sketcher.Constraint("Coincident", 4, 2, 5, 1),
    Sketcher.Constraint("Coincident", 5, 2, 0, 1),
    Sketcher.Constraint("Horizontal", 0),
    Sketcher.Constraint("Vertical", 1),
    Sketcher.Constraint("Horizontal", 2),
    Sketcher.Constraint("Vertical", 3),
    Sketcher.Constraint("Horizontal", 4),
    Sketcher.Constraint("Vertical", 5),
    Sketcher.Constraint("PointOnObject", 2, 2, -2),
    Sketcher.Constraint("DistanceX", 2, 1, 2, 2, Q("16.5 mm")),
    Sketcher.Constraint("DistanceY", 1, 1, 1, 2, Q("2 mm")),
    Sketcher.Constraint("DistanceX", 0, 1, 0, 2, Q("6.9464 mm")),
    Sketcher.Constraint("DistanceY", 3, 1, 3, 2, Q("5.8077 mm")),
    Sketcher.Constraint("DistanceY", 0, 2, -1, 1, Q("19.1332 mm")),
])
pad9 = body.newObject("PartDesign::Pad", "Pad008")
pad9.Profile = sketch17
pad9.Length = 7.4
pad9.Reversed = True

sketch18 = body.newObject("Sketcher::SketchObject", "Sketch017")
sketch18.AttachmentSupport = (doc.getObject("XY_Plane"), [""])
sketch18.MapMode = "FlatFace"
sketch18.AttachmentOffset = App.Placement(App.Vector(0, 0, -19.1332), App.Rotation())
sketch18.addGeometry([
    Part.LineSegment(App.Vector(-27.8, -23.4464, 0), App.Vector(-27.8, -16.5, 0)),
    Part.LineSegment(App.Vector(-27.8, -16.5, 0), App.Vector(-25.8, -16.5, 0)),
    Part.LineSegment(App.Vector(-25.8, -16.5, 0), App.Vector(-25.8, -23.4464, 0)),
    Part.LineSegment(App.Vector(-25.8, -23.4464, 0), App.Vector(-27.8, -23.4464, 0)),
    Part.LineSegment(App.Vector(-32.2, -16.5, 0), App.Vector(-32.2, -23.4464, 0)),
    Part.LineSegment(App.Vector(-32.2, -23.4464, 0), App.Vector(-33.2, -23.4464, 0)),
    Part.LineSegment(App.Vector(-33.2, -23.4464, 0), App.Vector(-33.2, -16.5, 0)),
    Part.LineSegment(App.Vector(-33.2, -16.5, 0), App.Vector(-32.2, -16.5, 0)),
], False)
sketch18.addConstraint([
    Sketcher.Constraint("Coincident", 0, 2, 1, 1),
    Sketcher.Constraint("Coincident", 1, 2, 2, 1),
    Sketcher.Constraint("Coincident", 2, 2, 3, 1),
    Sketcher.Constraint("Coincident", 3, 2, 0, 1),
    Sketcher.Constraint("Coincident", 4, 2, 5, 1),
    Sketcher.Constraint("Coincident", 5, 2, 6, 1),
    Sketcher.Constraint("Coincident", 6, 2, 7, 1),
    Sketcher.Constraint("Coincident", 7, 2, 4, 1),
    Sketcher.Constraint("Vertical", 0),
    Sketcher.Constraint("Horizontal", 1),
    Sketcher.Constraint("Vertical", 2),
    Sketcher.Constraint("Horizontal", 3),
    Sketcher.Constraint("Vertical", 4),
    Sketcher.Constraint("Horizontal", 5),
    Sketcher.Constraint("Vertical", 6),
    Sketcher.Constraint("Horizontal", 7),
    Sketcher.Constraint("Horizontal", 3, 2, 4, 2),
    Sketcher.Constraint("Horizontal", 1, 2, 6, 2),
    Sketcher.Constraint("DistanceX", 1, 1, 1, 2, Q("2 mm")),
    Sketcher.Constraint("DistanceX", 5, 2, 5, 1, Q("1 mm")),
    Sketcher.Constraint("DistanceX", 0, 2, -1, 1, Q("27.8 mm")),
    Sketcher.Constraint("DistanceY", 0, 2, -1, 1, Q("16.5 mm")),
    Sketcher.Constraint("DistanceX", 4, 2, -1, 1, Q("32.2 mm")),
    Sketcher.Constraint("DistanceY", 0, 1, 0, 2, Q("6.9464 mm")),
])
pad10 = body.newObject("PartDesign::Pad", "Pad009")
pad10.Profile = sketch18
pad10.Length = 2.5
pad10.Reversed = True
doc.recompute()

fillet2 = body.newObject("PartDesign::Fillet", "Fillet001")
fillet2.Base = (pad10, edges_at(pad10, [(-29.5, -23.446, -11.325), (-25.8, -11.723, -11.325), (-33.2, -11.723, -11.325)]))
fillet2.Radius = 2

sketch19 = body.newObject("Sketcher::SketchObject", "Sketch018")
sketch19.AttachmentSupport = (doc.getObject("XZ_Plane"), [""])
sketch19.MapMode = "FlatFace"
sketch19.AttachmentOffset = App.Placement(App.Vector(0, 0, 105), App.Rotation())
sketch19.addGeometry(Part.Circle(App.Vector(-30, -29.9185, 0), App.Vector(0, 0, 1), 2.75), False)
sketch19.addConstraint([
    Sketcher.Constraint("Diameter", 0, Q("5.5 mm")),
    Sketcher.Constraint("DistanceX", 0, 3, -1, 1, Q("30 mm")),
    Sketcher.Constraint("DistanceY", 0, 3, -1, 1, Q("29.9185 mm")),
])
pocket9 = body.newObject("PartDesign::Pocket", "Pocket008")
pocket9.Profile = sketch19
pocket9.Length = 2.5

sketch20 = body.newObject("Sketcher::SketchObject", "Sketch019")
sketch20.AttachmentSupport = (doc.getObject("XZ_Plane"), [""])
sketch20.MapMode = "FlatFace"
sketch20.AttachmentOffset = App.Placement(App.Vector(0, 0, -2.5), App.Rotation())
sketch20.addGeometry([
    Part.Circle(App.Vector(-8, -154.4212, 0), App.Vector(0, 0, 1), 1.6),
    Part.Circle(App.Vector(-8, -234.4212, 0), App.Vector(0, 0, 1), 1.6),
], False)
sketch20.addConstraint([
    Sketcher.Constraint("Equal", 0, 1),
    Sketcher.Constraint("Vertical", 0, 3, 1, 3),
    Sketcher.Constraint("Diameter", 0, Q("3.2 mm")),
    Sketcher.Constraint("DistanceY", 1, 3, 0, 3, Q("80 mm")),
    Sketcher.Constraint("DistanceX", 0, 3, -1, 1, Q("8 mm")),
    Sketcher.Constraint("DistanceY", 0, 3, -1, 1, Q("154.4212 mm")),
])
pocket10 = body.newObject("PartDesign::Pocket", "Pocket009")
pocket10.Profile = sketch20
pocket10.Length = 2.5
pocket10.Reversed = True

sketch21 = body.newObject("Sketcher::SketchObject", "Sketch020")
sketch21.AttachmentSupport = (doc.getObject("XZ_Plane"), [""])
sketch21.MapMode = "FlatFace"
sketch21.addGeometry([
    Part.LineSegment(App.Vector(-12.63, -239, 0), App.Vector(-12.63, -150.06, 0)),
    Part.LineSegment(App.Vector(-12.63, -150.06, 0), App.Vector(-99.8327, -150.06, 0)),
    Part.LineSegment(App.Vector(-99.8327, -150.06, 0), App.Vector(-99.8327, -239, 0)),
    Part.LineSegment(App.Vector(-99.8327, -239, 0), App.Vector(-12.63, -239, 0)),
], False)
sketch21.addConstraint([
    Sketcher.Constraint("Coincident", 0, 2, 1, 1),
    Sketcher.Constraint("Coincident", 1, 2, 2, 1),
    Sketcher.Constraint("Coincident", 2, 2, 3, 1),
    Sketcher.Constraint("Coincident", 3, 2, 0, 1),
    Sketcher.Constraint("Vertical", 0),
    Sketcher.Constraint("Horizontal", 1),
    Sketcher.Constraint("Vertical", 2),
    Sketcher.Constraint("Horizontal", 3),
    Sketcher.Constraint("DistanceY", 2, 2, -1, 1, Q("239 mm")),
    Sketcher.Constraint("DistanceY", 0, 1, 0, 2, Q("88.94 mm")),
    Sketcher.Constraint("DistanceX", 0, 2, -1, 1, Q("12.63 mm")),
    Sketcher.Constraint("DistanceX", 1, 2, 1, 1, Q("87.2027 mm")),
])
pocket11 = body.newObject("PartDesign::Pocket", "Pocket010")
pocket11.Profile = sketch21
pocket11.Length = 10
doc.recompute()

fillet3 = body.newObject("PartDesign::Fillet", "Fillet002")
fillet3.Base = (pocket11, edges_at(pocket11, [
    (-110, 1.25, -250),
    (0, 1.25, -250),
    (-110, 1.25, -140),
    (-60, 1.25, 0),
    (0, 1.25, 0),
]))
fillet3.Radius = 2

sketch22 = body.newObject("Sketcher::SketchObject", "Sketch021")
sketch22.AttachmentSupport = (doc.getObject("XZ_Plane"), [""])
sketch22.MapMode = "FlatFace"
sketch22.addGeometry([
    Part.LineSegment(App.Vector(-6, -105.9913, 0), App.Vector(-6, -56.5984, 0)),
    Part.LineSegment(App.Vector(-6, -56.5984, 0), App.Vector(-53, -56.5984, 0)),
    Part.LineSegment(App.Vector(-53, -56.5984, 0), App.Vector(-53, -105.9913, 0)),
    Part.LineSegment(App.Vector(-53, -105.9913, 0), App.Vector(-6, -105.9913, 0)),
], False)
sketch22.addConstraint([
    Sketcher.Constraint("Coincident", 0, 2, 1, 1),
    Sketcher.Constraint("Coincident", 1, 2, 2, 1),
    Sketcher.Constraint("Coincident", 2, 2, 3, 1),
    Sketcher.Constraint("Coincident", 3, 2, 0, 1),
    Sketcher.Constraint("Vertical", 0),
    Sketcher.Constraint("Horizontal", 1),
    Sketcher.Constraint("Vertical", 2),
    Sketcher.Constraint("Horizontal", 3),
    Sketcher.Constraint("DistanceX", 0, 2, -1, 1, Q("6 mm")),
    Sketcher.Constraint("DistanceX", 1, 2, 1, 1, Q("47 mm")),
    Sketcher.Constraint("DistanceY", 0, 1, 0, 2, Q("49.393 mm")),
    Sketcher.Constraint("DistanceY", 0, 2, -1, 1, Q("56.5984 mm")),
])
pocket12 = body.newObject("PartDesign::Pocket", "Pocket011")
pocket12.Profile = sketch22
pocket12.Length = 10

sketch23 = body.newObject("Sketcher::SketchObject", "Sketch022")
sketch23.AttachmentSupport = (doc.getObject("XZ_Plane"), [""])
sketch23.MapMode = "FlatFace"
sketch23.AttachmentOffset = App.Placement(App.Vector(0, 0, 105), App.Rotation())
sketch23.addGeometry([
    Part.LineSegment(App.Vector(-60, -140, 0), App.Vector(0, -140, 0)),
    Part.LineSegment(App.Vector(0, -140, 0), App.Vector(0, 0, 0)),
    Part.LineSegment(App.Vector(0, 0, 0), App.Vector(-60, 0, 0)),
    Part.LineSegment(App.Vector(-60, 0, 0), App.Vector(-60, -140, 0)),
], False)
sketch23.addConstraint([
    Sketcher.Constraint("Coincident", 0, 2, 1, 1),
    Sketcher.Constraint("Coincident", 1, 2, 2, 1),
    Sketcher.Constraint("Coincident", 2, 2, 3, 1),
    Sketcher.Constraint("Coincident", 3, 2, 0, 1),
    Sketcher.Constraint("Horizontal", 0),
    Sketcher.Constraint("Vertical", 1),
    Sketcher.Constraint("Horizontal", 2),
    Sketcher.Constraint("Vertical", 3),
    Sketcher.Constraint("Coincident", 1, 2, -1, 1),
    Sketcher.Constraint("DistanceX", 0, 1, 0, 2, Q("60 mm")),
    Sketcher.Constraint("DistanceY", 1, 1, 1, 2, Q("140 mm")),
])
pocket13 = body.newObject("PartDesign::Pocket", "Pocket012")
pocket13.Profile = sketch23
pocket13.Type = "ThroughAll"
pocket13.Midplane = True

doc.recompute()
